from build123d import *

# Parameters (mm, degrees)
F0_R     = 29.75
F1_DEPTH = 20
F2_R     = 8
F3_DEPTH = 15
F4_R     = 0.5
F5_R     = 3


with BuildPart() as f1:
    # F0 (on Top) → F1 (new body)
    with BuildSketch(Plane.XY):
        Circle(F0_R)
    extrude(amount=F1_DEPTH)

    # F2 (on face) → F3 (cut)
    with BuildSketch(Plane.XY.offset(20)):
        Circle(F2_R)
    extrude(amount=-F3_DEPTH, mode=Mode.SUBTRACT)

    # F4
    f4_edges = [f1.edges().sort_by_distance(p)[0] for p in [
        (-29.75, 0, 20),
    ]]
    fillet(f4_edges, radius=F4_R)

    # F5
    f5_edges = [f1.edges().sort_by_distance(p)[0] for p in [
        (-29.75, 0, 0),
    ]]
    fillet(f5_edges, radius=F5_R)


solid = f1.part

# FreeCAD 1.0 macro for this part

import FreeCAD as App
import Part
import Sketcher
from FreeCAD import Vector


def edges_at(feature, points):
    """Names of the edges that pass closest to the given points."""
    edges = feature.Shape.Edges
    near = lambda p: min(range(len(edges)), key=lambda i: edges[i].distToShape(Part.Vertex(*p))[0])
    return sorted({f"Edge{near(p) + 1}" for p in points})

doc = App.newDocument("Part")
params = doc.addObject("Spreadsheet::Sheet", "Params")
for row, (alias, value) in enumerate([
    ("sketch1_diameter", "59.5 mm"),
    ("pad1_length", "20 mm"),
    ("sketch2_diameter", "16 mm"),
    ("pocket1_length", "15 mm"),
    ("fillet_radius", "0.5 mm"),
    ("fillet2_radius", "3 mm"),
], start=1):
    params.set(f"A{row}", alias)
    params.set(f"B{row}", "=" + value)
    params.setAlias(f"B{row}", alias)

body = doc.addObject("PartDesign::Body", "Body")

# Sketch on XY plane
sketch1 = doc.addObject("Sketcher::SketchObject", "Sketch")
body.addObject(sketch1)
sketch1.AttachmentSupport = (doc.XY_Plane, [""])
sketch1.MapMode = "FlatFace"
sketch1.addGeometry(Part.Circle(Vector(0, 0, 0), Vector(0, 0, 1), 30), False)
sketch1.addConstraint([
    Sketcher.Constraint("Coincident", 0, 3, -1, 1),
    Sketcher.Constraint("Diameter", 0, 59.5),
])
sketch1.setExpression("Constraints[1]", "Params.sketch1_diameter")
pad1 = doc.addObject("PartDesign::Pad", "Pad")
body.addObject(pad1)
pad1.Profile = sketch1
pad1.setExpression("Length", "Params.pad1_length")

# Sketch on XY plane
sketch2 = doc.addObject("Sketcher::SketchObject", "Sketch001")
body.addObject(sketch2)
sketch2.AttachmentSupport = (doc.XY_Plane, [""])
sketch2.MapMode = "FlatFace"
sketch2.AttachmentOffset = App.Placement(Vector(0, 0, 20), App.Rotation())
sketch2.addGeometry(Part.Circle(Vector(0, 0, 0), Vector(0, 0, 1), 8), False)
sketch2.addConstraint([
    Sketcher.Constraint("Coincident", 0, 3, -1, 1),
    Sketcher.Constraint("Diameter", 0, 16.0),
])
sketch2.setExpression("Constraints[1]", "Params.sketch2_diameter")
pocket1 = doc.addObject("PartDesign::Pocket", "Pocket")
body.addObject(pocket1)
pocket1.Profile = sketch2
pocket1.setExpression("Length", "Params.pocket1_length")
doc.recompute()

fillet = doc.addObject("PartDesign::Fillet", "Fillet")
body.addObject(fillet)
fillet.Base = (pocket1, edges_at(pocket1, [(-29.75, 0, 20)]))
fillet.setExpression("Radius", "Params.fillet_radius")
doc.recompute()

fillet2 = doc.addObject("PartDesign::Fillet", "Fillet001")
body.addObject(fillet2)
fillet2.Base = (fillet, edges_at(fillet, [(-29.75, 0, 0)]))
fillet2.setExpression("Radius", "Params.fillet2_radius")

doc.recompute()
